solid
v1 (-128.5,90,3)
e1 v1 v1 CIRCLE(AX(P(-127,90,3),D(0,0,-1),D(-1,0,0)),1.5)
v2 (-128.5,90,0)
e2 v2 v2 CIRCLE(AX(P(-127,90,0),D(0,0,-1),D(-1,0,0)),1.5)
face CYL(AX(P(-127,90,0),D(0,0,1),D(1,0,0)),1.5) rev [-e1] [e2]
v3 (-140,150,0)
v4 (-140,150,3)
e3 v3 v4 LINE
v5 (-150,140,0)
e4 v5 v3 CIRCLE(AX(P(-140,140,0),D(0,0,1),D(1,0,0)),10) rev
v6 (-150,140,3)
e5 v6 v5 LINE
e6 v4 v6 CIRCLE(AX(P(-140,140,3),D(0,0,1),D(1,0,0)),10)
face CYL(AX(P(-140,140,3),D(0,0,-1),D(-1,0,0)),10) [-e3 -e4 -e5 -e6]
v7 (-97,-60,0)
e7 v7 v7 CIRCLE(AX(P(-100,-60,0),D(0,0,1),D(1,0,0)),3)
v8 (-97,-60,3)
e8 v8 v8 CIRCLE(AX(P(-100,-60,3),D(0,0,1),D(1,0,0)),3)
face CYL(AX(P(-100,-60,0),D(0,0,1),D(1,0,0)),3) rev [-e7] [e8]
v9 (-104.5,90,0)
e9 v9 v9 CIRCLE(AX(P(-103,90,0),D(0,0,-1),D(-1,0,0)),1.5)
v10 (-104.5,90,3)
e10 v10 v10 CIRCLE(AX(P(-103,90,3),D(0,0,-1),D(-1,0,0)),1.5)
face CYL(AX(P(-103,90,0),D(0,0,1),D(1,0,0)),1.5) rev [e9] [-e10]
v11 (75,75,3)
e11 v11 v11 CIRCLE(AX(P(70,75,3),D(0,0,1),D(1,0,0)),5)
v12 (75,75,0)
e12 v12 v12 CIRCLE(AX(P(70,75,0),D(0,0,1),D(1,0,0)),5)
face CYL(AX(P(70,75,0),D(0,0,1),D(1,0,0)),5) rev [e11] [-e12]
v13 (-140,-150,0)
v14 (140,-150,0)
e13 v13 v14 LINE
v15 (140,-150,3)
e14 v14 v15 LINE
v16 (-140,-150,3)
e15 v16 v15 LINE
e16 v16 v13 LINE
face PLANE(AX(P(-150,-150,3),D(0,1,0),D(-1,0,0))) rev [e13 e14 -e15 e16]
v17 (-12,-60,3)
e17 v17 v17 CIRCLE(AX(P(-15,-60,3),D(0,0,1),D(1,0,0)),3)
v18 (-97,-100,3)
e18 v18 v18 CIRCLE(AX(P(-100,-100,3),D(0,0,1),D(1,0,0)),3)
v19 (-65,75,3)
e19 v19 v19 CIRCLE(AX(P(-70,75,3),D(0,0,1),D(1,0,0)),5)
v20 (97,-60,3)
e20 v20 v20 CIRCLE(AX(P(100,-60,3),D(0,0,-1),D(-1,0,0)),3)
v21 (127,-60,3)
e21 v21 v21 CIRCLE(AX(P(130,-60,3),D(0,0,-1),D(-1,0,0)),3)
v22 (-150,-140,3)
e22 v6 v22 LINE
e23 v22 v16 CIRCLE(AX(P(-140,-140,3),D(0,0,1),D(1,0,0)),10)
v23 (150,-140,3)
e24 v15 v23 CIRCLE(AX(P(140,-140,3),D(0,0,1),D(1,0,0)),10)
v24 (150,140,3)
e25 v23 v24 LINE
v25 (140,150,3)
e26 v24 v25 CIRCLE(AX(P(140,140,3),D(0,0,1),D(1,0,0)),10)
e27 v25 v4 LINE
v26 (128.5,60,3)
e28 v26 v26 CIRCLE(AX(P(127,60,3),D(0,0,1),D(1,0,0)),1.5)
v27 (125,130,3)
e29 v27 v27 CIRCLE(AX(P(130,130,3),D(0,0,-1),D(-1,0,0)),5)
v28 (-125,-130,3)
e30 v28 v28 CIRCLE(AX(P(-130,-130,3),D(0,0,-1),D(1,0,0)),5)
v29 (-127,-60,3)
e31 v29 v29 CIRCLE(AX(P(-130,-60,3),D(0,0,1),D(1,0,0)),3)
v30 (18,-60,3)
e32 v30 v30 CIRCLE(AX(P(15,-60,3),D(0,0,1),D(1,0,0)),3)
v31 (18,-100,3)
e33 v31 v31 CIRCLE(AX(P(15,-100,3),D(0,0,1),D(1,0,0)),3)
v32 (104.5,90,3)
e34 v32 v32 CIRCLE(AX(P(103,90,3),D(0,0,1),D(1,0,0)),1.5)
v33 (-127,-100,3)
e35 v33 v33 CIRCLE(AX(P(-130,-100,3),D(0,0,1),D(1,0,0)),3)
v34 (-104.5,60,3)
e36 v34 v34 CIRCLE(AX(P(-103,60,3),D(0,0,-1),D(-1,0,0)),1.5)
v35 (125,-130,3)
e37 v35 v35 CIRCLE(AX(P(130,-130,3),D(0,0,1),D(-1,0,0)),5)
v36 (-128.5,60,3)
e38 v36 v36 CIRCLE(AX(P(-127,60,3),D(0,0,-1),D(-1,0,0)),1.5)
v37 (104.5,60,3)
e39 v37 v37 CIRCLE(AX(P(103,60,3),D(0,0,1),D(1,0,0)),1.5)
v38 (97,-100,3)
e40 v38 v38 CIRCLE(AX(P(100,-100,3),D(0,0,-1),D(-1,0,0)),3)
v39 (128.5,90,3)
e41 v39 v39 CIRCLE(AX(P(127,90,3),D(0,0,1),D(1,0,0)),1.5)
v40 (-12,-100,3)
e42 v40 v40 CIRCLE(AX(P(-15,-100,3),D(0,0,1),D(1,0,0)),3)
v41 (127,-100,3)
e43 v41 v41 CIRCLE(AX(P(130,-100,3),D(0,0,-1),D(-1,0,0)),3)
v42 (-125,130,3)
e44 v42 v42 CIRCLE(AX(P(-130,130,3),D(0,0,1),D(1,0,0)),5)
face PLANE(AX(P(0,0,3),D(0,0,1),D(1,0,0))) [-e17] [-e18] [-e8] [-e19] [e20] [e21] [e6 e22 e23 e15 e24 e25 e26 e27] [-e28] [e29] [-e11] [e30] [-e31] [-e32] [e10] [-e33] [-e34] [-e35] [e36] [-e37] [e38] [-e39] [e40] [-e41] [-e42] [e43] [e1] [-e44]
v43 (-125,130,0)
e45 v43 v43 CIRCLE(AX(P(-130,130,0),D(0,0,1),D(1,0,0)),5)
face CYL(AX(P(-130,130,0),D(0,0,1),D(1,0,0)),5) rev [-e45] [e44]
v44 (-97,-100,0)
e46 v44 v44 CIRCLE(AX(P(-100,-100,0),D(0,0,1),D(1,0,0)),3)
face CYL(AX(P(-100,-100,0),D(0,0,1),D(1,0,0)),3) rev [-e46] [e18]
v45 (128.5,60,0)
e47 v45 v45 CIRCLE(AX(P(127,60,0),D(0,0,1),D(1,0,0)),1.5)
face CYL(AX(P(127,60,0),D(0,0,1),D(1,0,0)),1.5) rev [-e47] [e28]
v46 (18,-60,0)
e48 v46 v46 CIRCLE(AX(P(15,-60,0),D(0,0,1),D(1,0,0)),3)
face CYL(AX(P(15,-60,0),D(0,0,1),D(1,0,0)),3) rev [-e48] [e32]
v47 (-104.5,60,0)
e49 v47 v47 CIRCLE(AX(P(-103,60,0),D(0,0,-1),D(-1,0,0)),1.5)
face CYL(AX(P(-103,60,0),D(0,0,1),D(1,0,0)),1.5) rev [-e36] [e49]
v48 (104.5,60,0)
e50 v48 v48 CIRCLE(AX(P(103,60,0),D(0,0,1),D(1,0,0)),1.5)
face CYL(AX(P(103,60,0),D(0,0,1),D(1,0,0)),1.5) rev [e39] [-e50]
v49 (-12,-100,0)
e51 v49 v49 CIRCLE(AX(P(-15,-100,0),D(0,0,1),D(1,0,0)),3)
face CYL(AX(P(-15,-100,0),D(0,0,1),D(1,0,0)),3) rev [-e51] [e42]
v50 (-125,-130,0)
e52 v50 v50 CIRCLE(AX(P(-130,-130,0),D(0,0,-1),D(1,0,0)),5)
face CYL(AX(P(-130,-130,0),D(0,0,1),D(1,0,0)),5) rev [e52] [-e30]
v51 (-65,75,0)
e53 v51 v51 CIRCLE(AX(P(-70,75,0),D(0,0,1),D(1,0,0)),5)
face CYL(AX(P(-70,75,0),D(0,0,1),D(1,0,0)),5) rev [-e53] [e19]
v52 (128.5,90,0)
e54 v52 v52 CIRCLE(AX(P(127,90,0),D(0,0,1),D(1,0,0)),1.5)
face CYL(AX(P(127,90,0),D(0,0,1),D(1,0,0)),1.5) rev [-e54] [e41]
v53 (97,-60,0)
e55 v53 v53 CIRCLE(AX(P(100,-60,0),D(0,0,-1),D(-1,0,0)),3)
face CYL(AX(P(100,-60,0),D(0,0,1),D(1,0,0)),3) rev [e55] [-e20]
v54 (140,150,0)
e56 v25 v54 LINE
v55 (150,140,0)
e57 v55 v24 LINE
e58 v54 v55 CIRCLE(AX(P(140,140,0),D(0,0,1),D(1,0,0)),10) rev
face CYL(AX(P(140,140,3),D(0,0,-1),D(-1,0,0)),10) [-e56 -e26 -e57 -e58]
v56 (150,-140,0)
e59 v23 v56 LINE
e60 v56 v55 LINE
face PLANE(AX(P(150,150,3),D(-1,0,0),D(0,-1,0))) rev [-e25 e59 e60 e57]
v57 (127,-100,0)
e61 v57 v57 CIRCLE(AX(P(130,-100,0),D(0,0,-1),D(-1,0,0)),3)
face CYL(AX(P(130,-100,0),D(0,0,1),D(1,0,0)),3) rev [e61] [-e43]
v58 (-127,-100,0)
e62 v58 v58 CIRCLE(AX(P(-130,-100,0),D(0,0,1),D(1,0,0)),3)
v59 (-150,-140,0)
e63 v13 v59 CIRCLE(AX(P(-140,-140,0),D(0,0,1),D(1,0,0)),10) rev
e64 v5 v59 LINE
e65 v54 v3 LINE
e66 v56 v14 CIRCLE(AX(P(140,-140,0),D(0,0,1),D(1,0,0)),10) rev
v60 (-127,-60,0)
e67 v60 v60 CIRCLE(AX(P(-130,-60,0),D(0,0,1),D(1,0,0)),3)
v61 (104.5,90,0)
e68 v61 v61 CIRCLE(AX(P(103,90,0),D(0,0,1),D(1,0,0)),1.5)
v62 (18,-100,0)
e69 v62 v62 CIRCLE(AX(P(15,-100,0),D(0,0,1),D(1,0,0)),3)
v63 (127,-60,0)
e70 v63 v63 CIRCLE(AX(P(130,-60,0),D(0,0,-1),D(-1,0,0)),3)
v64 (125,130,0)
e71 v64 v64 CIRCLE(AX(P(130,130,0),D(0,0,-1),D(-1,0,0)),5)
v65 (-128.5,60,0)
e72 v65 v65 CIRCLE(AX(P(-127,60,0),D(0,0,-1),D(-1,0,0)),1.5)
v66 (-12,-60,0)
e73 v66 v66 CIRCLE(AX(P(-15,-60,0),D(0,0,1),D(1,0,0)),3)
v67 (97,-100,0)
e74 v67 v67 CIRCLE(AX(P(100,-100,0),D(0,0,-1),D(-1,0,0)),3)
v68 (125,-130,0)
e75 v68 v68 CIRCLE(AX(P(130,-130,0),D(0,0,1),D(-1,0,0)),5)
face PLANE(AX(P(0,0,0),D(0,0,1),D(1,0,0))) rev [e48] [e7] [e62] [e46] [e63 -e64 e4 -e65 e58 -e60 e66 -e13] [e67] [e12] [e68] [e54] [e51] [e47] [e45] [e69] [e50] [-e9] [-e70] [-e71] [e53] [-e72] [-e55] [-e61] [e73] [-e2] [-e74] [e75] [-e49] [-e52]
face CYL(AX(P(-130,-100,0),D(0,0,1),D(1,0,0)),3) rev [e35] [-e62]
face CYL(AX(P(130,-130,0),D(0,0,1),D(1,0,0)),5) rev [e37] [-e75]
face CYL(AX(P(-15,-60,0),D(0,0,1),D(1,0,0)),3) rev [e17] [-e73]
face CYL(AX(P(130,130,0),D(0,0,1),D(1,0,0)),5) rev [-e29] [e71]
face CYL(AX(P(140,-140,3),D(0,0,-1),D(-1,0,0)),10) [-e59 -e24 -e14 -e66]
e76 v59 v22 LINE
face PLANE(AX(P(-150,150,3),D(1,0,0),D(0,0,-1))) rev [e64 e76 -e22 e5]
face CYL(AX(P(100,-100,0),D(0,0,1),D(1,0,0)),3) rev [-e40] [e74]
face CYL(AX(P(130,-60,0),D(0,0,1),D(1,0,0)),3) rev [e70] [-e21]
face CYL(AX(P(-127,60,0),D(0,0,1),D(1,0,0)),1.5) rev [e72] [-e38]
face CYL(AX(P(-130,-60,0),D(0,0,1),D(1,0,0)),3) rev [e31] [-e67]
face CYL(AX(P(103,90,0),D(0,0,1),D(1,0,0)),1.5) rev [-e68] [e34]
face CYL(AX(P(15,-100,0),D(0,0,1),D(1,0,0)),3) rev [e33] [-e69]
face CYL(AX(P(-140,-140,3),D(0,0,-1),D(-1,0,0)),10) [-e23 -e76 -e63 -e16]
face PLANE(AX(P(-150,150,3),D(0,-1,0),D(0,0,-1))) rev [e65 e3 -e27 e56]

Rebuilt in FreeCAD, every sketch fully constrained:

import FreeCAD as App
import Part
import Sketcher
Q = App.Units.Quantity


def edges_at(feature, points):
    """Names of the edges that pass closest to the given points."""
    edges = feature.Shape.Edges
    near = lambda p: min(range(len(edges)), key=lambda i: edges[i].distToShape(Part.Vertex(*p))[0])
    return sorted({f"Edge{near(p) + 1}" for p in points})

doc = App.newDocument("Part")
params = doc.addObject("Spreadsheet::Sheet", "Params")
for row, (alias, value) in enumerate([
    ("sketch1_width", "300 mm"),
    ("pad1_length", "3 mm"),
    ("sketch2_diameter", "3 mm"),
    ("fillet_radius", "10 mm"),
    ("sketch3_diameter", "10 mm"),
    ("sketch4_diameter", "10 mm"),
    ("sketch5_diameter", "10 mm"),
    ("sketch6_diameter", "6 mm"),
    ("sketch7_diameter", "6 mm"),
], start=1):
    params.set(f"A{row}", alias)
    params.set(f"B{row}", "=" + value)
    params.setAlias(f"B{row}", alias)

body = doc.addObject("PartDesign::Body", "Body")

# Sketch on XY plane
sketch1 = body.newObject("Sketcher::SketchObject", "Sketch")
sketch1.AttachmentSupport = (doc.getObject("XY_Plane"), [""])
sketch1.MapMode = "FlatFace"
sketch1.addGeometry([
    Part.LineSegment(App.Vector(-150, 150, 0), App.Vector(-150, -150, 0)),
    Part.LineSegment(App.Vector(-150, -150, 0), App.Vector(150, -150, 0)),
    Part.LineSegment(App.Vector(150, -150, 0), App.Vector(150, 150, 0)),
    Part.LineSegment(App.Vector(150, 150, 0), App.Vector(-150, 150, 0)),
], False)
sketch1.addConstraint([
    Sketcher.Constraint("Coincident", 0, 2, 1, 1),
    Sketcher.Constraint("Coincident", 1, 2, 2, 1),
    Sketcher.Constraint("Coincident", 2, 2, 3, 1),
    Sketcher.Constraint("Coincident", 3, 2, 0, 1),
    Sketcher.Constraint("Vertical", 0),
    Sketcher.Constraint("Horizontal", 1),
    Sketcher.Constraint("Vertical", 2),
    Sketcher.Constraint("Horizontal", 3),
    Sketcher.Constraint("Symmetric", 0, 2, 2, 2, -1, 1),
    Sketcher.Constraint("Equal", 3, 0),
    Sketcher.Constraint("DistanceX", 1, 1, 1, 2, Q("300 mm")),
])
sketch1.setExpression("Constraints[10]", "Params.sketch1_width")
pad1 = body.newObject("PartDesign::Pad", "Pad")
pad1.Profile = sketch1
pad1.setExpression("Length", "Params.pad1_length")

# Sketch on XY plane
sketch2 = body.newObject("Sketcher::SketchObject", "Sketch001")
sketch2.AttachmentSupport = (doc.getObject("XY_Plane"), [""])
sketch2.MapMode = "FlatFace"
sketch2.AttachmentOffset = App.Placement(App.Vector(0, 0, 3), App.Rotation())
sketch2.addGeometry([
    Part.Circle(App.Vector(103, 90, 0), App.Vector(0, 0, 1), 1.5),
    Part.Circle(App.Vector(127, 90, 0), App.Vector(0, 0, 1), 1.5),
    Part.Circle(App.Vector(103, 60, 0), App.Vector(0, 0, 1), 1.5),
    Part.Circle(App.Vector(127, 60, 0), App.Vector(0, 0, 1), 1.5),
], False)
sketch2.addConstraint([
    Sketcher.Constraint("Equal", 0, 1),
    Sketcher.Constraint("Equal", 1, 2),
    Sketcher.Constraint("Equal", 2, 3),
    Sketcher.Constraint("Horizontal", 0, 3, 1, 3),
    Sketcher.Constraint("Horizontal", 2, 3, 3, 3),
    Sketcher.Constraint("Vertical", 0, 3, 2, 3),
    Sketcher.Constraint("Vertical", 1, 3, 3, 3),
    Sketcher.Constraint("Diameter", 0, Q("3 mm")),
    Sketcher.Constraint("DistanceX", -1, 1, 0, 3, Q("103 mm")),
    Sketcher.Constraint("DistanceY", -1, 1, 0, 3, Q("90 mm")),
    Sketcher.Constraint("DistanceX", -1, 1, 1, 3, Q("127 mm")),
    Sketcher.Constraint("DistanceY", -1, 1, 2, 3, Q("60 mm")),
])
sketch2.setExpression("Constraints[7]", "Params.sketch2_diameter")
pocket1 = body.newObject("PartDesign::Pocket", "Pocket")
pocket1.Profile = sketch2
pocket1.Type = "ThroughAll"
doc.recompute()

mirrored = body.newObject("PartDesign::Mirrored", "Mirrored")
mirrored.Originals = [pocket1]
mirrored.MirrorPlane = (doc.getObject("YZ_Plane"), [""])
body.Tip = mirrored
doc.recompute()

fillet = body.newObject("PartDesign::Fillet", "Fillet")
fillet.Base = (mirrored, edges_at(mirrored, [
    (-150, 150, 1.5),
    (150, 150, 1.5),
    (150, -150, 1.5),
    (-150, -150, 1.5),
]))
fillet.setExpression("Radius", "Params.fillet_radius")

# Sketch on XY plane
sketch3 = body.newObject("Sketcher::SketchObject", "Sketch002")
sketch3.AttachmentSupport = (doc.getObject("XY_Plane"), [""])
sketch3.MapMode = "FlatFace"
sketch3.AttachmentOffset = App.Placement(App.Vector(0, 0, 3), App.Rotation())
sketch3.addGeometry(Part.Circle(App.Vector(-130, 130, 0), App.Vector(0, 0, 1), 5), False)
sketch3.addConstraint([
    Sketcher.Constraint("Diameter", 0, Q("10 mm")),
    Sketcher.Constraint("DistanceX", 0, 3, -1, 1, Q("130 mm")),
    Sketcher.Constraint("DistanceY", -1, 1, 0, 3, Q("130 mm")),
])
sketch3.setExpression("Constraints[0]", "Params.sketch3_diameter")
pocket2 = body.newObject("PartDesign::Pocket", "Pocket001")
pocket2.Profile = sketch3
pocket2.Type = "ThroughAll"
doc.recompute()

mirrored2 = body.newObject("PartDesign::Mirrored", "Mirrored001")
mirrored2.Originals = [pocket2]
mirrored2.MirrorPlane = (doc.getObject("YZ_Plane"), [""])
body.Tip = mirrored2
doc.recompute()

mirrored3 = body.newObject("PartDesign::Mirrored", "Mirrored002")
mirrored3.Originals = [pocket2]
mirrored3.MirrorPlane = (doc.getObject("XZ_Plane"), [""])
body.Tip = mirrored3

# Sketch on XY plane
sketch4 = body.newObject("Sketcher::SketchObject", "Sketch003")
sketch4.AttachmentSupport = (doc.getObject("XY_Plane"), [""])
sketch4.MapMode = "FlatFace"
sketch4.AttachmentOffset = App.Placement(App.Vector(0, 0, 3), App.Rotation())
sketch4.addGeometry(Part.Circle(App.Vector(130, -130, 0), App.Vector(0, 0, 1), 5), False)
sketch4.addConstraint([
    Sketcher.Constraint("Diameter", 0, Q("10 mm")),
    Sketcher.Constraint("DistanceX", -1, 1, 0, 3, Q("130 mm")),
    Sketcher.Constraint("DistanceY", 0, 3, -1, 1, Q("130 mm")),
])
sketch4.setExpression("Constraints[0]", "Params.sketch4_diameter")
pocket3 = body.newObject("PartDesign::Pocket", "Pocket002")
pocket3.Profile = sketch4
pocket3.Type = "ThroughAll"

# Sketch on XY plane
sketch5 = body.newObject("Sketcher::SketchObject", "Sketch004")
sketch5.AttachmentSupport = (doc.getObject("XY_Plane"), [""])
sketch5.MapMode = "FlatFace"
sketch5.AttachmentOffset = App.Placement(App.Vector(0, 0, 3), App.Rotation())
sketch5.addGeometry([
    Part.Circle(App.Vector(-70, 75, 0), App.Vector(0, 0, 1), 5),
    Part.Circle(App.Vector(70, 75, 0), App.Vector(0, 0, 1), 5),
], False)
sketch5.addConstraint([
    Sketcher.Constraint("Equal", 0, 1),
    Sketcher.Constraint("Symmetric", 0, 3, 1, 3, -2),
    Sketcher.Constraint("Diameter", 0, Q("10 mm")),
    Sketcher.Constraint("DistanceX", 0, 3, -1, 1, Q("70 mm")),
    Sketcher.Constraint("DistanceY", -1, 1, 0, 3, Q("75 mm")),
])
sketch5.setExpression("Constraints[2]", "Params.sketch5_diameter")
pocket4 = body.newObject("PartDesign::Pocket", "Pocket003")
pocket4.Profile = sketch5
pocket4.Type = "ThroughAll"

# Sketch on XY plane
sketch6 = body.newObject("Sketcher::SketchObject", "Sketch005")
sketch6.AttachmentSupport = (doc.getObject("XY_Plane"), [""])
sketch6.MapMode = "FlatFace"
sketch6.AttachmentOffset = App.Placement(App.Vector(0, 0, 3), App.Rotation())
sketch6.addGeometry([
    Part.Circle(App.Vector(-130, -100, 0), App.Vector(0, 0, 1), 3),
    Part.Circle(App.Vector(-130, -60, 0), App.Vector(0, 0, 1), 3),
    Part.Circle(App.Vector(-100, -60, 0), App.Vector(0, 0, 1), 3),
    Part.Circle(App.Vector(-100, -100, 0), App.Vector(0, 0, 1), 3),
], False)
sketch6.addConstraint([
    Sketcher.Constraint("Equal", 0, 1),
    Sketcher.Constraint("Equal", 1, 2),
    Sketcher.Constraint("Equal", 2, 3),
    Sketcher.Constraint("Horizontal", 1, 3, 2, 3),
    Sketcher.Constraint("Horizontal", 0, 3, 3, 3),
    Sketcher.Constraint("Vertical", 0, 3, 1, 3),
    Sketcher.Constraint("Vertical", 2, 3, 3, 3),
    Sketcher.Constraint("Diameter", 0, Q("6 mm")),
    Sketcher.Constraint("DistanceX", 0, 3, -1, 1, Q("130 mm")),
    Sketcher.Constraint("DistanceY", 0, 3, -1, 1, Q("100 mm")),
    Sketcher.Constraint("DistanceY", 1, 3, -1, 1, Q("60 mm")),
    Sketcher.Constraint("DistanceX", 2, 3, -1, 1, Q("100 mm")),
])
sketch6.setExpression("Constraints[7]", "Params.sketch6_diameter")
pocket5 = body.newObject("PartDesign::Pocket", "Pocket004")
pocket5.Profile = sketch6
pocket5.Type = "ThroughAll"
doc.recompute()

mirrored4 = body.newObject("PartDesign::Mirrored", "Mirrored003")
mirrored4.Originals = [pocket5]
mirrored4.MirrorPlane = (doc.getObject("YZ_Plane"), [""])
body.Tip = mirrored4

# Sketch on XY plane
sketch7 = body.newObject("Sketcher::SketchObject", "Sketch006")
sketch7.AttachmentSupport = (doc.getObject("XY_Plane"), [""])
sketch7.MapMode = "FlatFace"
sketch7.AttachmentOffset = App.Placement(App.Vector(0, 0, 3), App.Rotation())
sketch7.addGeometry([
    Part.Circle(App.Vector(-15, -60, 0), App.Vector(0, 0, 1), 3),
    Part.Circle(App.Vector(15, -60, 0), App.Vector(0, 0, 1), 3),
    Part.Circle(App.Vector(-15, -100, 0), App.Vector(0, 0, 1), 3),
    Part.Circle(App.Vector(15, -100, 0), App.Vector(0, 0, 1), 3),
], False)
sketch7.addConstraint([
    Sketcher.Constraint("Equal", 0, 1),
    Sketcher.Constraint("Equal", 1, 2),
    Sketcher.Constraint("Equal", 2, 3),
    Sketcher.Constraint("Symmetric", 0, 3, 1, 3, -2),
    Sketcher.Constraint("Symmetric", 2, 3, 3, 3, -2),
    Sketcher.Constraint("Vertical", 0, 3, 2, 3),
    Sketcher.Constraint("Diameter", 0, Q("6 mm")),
    Sketcher.Constraint("DistanceX", 0, 3, -1, 1, Q("15 mm")),
    Sketcher.Constraint("DistanceY", 0, 3, -1, 1, Q("60 mm")),
    Sketcher.Constraint("DistanceY", 2, 3, -1, 1, Q("100 mm")),
])
sketch7.setExpression("Constraints[6]", "Params.sketch7_diameter")
pocket6 = body.newObject("PartDesign::Pocket", "Pocket005")
pocket6.Profile = sketch7
pocket6.Type = "ThroughAll"

doc.recompute()
